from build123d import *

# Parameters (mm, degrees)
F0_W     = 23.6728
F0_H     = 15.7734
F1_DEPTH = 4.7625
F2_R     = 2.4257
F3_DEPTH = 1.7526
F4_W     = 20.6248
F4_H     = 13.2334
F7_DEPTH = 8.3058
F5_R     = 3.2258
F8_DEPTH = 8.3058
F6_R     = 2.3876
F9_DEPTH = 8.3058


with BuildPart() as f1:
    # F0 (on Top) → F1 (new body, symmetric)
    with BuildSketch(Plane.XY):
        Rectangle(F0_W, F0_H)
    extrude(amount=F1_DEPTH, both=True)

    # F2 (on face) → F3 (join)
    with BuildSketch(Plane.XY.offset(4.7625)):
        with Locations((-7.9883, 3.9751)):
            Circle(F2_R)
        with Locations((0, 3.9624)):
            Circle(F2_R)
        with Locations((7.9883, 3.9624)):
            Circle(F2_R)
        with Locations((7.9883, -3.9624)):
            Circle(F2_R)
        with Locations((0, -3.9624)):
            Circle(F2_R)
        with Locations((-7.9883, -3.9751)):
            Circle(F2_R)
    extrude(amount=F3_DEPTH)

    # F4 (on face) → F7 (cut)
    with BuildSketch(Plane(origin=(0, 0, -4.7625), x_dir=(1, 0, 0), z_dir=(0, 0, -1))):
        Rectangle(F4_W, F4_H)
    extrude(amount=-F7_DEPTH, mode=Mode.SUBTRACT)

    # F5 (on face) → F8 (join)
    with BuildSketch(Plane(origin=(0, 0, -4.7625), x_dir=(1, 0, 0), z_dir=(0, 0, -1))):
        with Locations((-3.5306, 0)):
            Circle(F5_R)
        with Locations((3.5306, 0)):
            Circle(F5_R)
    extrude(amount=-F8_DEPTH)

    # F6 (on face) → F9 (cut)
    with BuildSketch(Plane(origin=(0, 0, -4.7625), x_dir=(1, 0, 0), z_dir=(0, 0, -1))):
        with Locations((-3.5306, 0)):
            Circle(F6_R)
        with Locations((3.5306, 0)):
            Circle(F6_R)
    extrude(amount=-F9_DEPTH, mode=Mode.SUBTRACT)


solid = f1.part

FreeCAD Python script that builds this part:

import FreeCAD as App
import Part
import Sketcher
from FreeCAD import Vector
Q = App.Units.Quantity

doc = App.newDocument("Part")
params = doc.addObject("Spreadsheet::Sheet", "Params")
for row, (alias, value) in enumerate([
    ("sketch1_width", "0.932 in"),
    ("sketch1_height", "0.621 in"),
    ("pad1_length", "0.375 in"),
    ("sketch2_diameter", "0.191 in"),
    ("pad2_length", "0.069 in"),
    ("sketch3_width", "0.812 in"),
    ("sketch3_height", "0.521 in"),
    ("pocket1_length", "0.327 in"),
    ("sketch4_diameter", "0.254 in"),
    ("pad3_length", "0.327 in"),
    ("sketch5_diameter", "0.188 in"),
    ("pocket2_length", "0.327 in"),
], start=1):
    params.set(f"A{row}", alias)
    params.set(f"B{row}", "=" + value)
    params.setAlias(f"B{row}", alias)

body = doc.addObject("PartDesign::Body", "Body")

# Sketch on XY plane
sketch1 = body.newObject("Sketcher::SketchObject", "Sketch")
sketch1.AttachmentSupport = (doc.getObject("XY_Plane"), [""])
sketch1.MapMode = "FlatFace"
sketch1.addGeometry([
    Part.LineSegment(Vector(-12, 8, 0), Vector(-12, -8, 0)),
    Part.LineSegment(Vector(-12, -8, 0), Vector(12, -8, 0)),
    Part.LineSegment(Vector(12, -8, 0), Vector(12, 8, 0)),
    Part.LineSegment(Vector(12, 8, 0), Vector(-12, 8, 0)),
], False)
sketch1.addConstraint([
    Sketcher.Constraint("Coincident", 0, 2, 1, 1),
    Sketcher.Constraint("Coincident", 1, 2, 2, 1),
    Sketcher.Constraint("Coincident", 2, 2, 3, 1),
    Sketcher.Constraint("Coincident", 3, 2, 0, 1),
    Sketcher.Constraint("Vertical", 0),
    Sketcher.Constraint("Horizontal", 1),
    Sketcher.Constraint("Vertical", 2),
    Sketcher.Constraint("Horizontal", 3),
    Sketcher.Constraint("Symmetric", 0, 2, 2, 2, -1, 1),
    Sketcher.Constraint("DistanceX", 1, 1, 1, 2, Q("0.932 in")),
    Sketcher.Constraint("DistanceY", 0, 2, 0, 1, Q("0.621 in")),
])
sketch1.setExpression("Constraints[9]", "Params.sketch1_width")
sketch1.setExpression("Constraints[10]", "Params.sketch1_height")
pad1 = body.newObject("PartDesign::Pad", "Pad")
pad1.Profile = sketch1
pad1.setExpression("Length", "Params.pad1_length")
pad1.Midplane = True

# Sketch on XY plane
sketch2 = body.newObject("Sketcher::SketchObject", "Sketch001")
sketch2.AttachmentSupport = (doc.getObject("XY_Plane"), [""])
sketch2.MapMode = "FlatFace"
sketch2.AttachmentOffset = App.Placement(Vector(0, 0, 0.1875 * 25.4), App.Rotation())
sketch2.addGeometry([
    Part.Circle(Vector(-8, 4, 0), Vector(0, 0, 1), 2.4),  # 0
    Part.Circle(Vector(0, 4, 0), Vector(0, 0, 1), 2.4),  # 1
    Part.Circle(Vector(8, 4, 0), Vector(0, 0, 1), 2.4),  # 2
    Part.Circle(Vector(8, -4, 0), Vector(0, 0, 1), 2.4),  # 3
    Part.Circle(Vector(0, -4, 0), Vector(0, 0, 1), 2.4),  # 4
    Part.Circle(Vector(-8, -4, 0), Vector(0, 0, 1), 2.4),  # 5
], False)
sketch2.addConstraint([
    Sketcher.Constraint("Equal", 0, 1),
    Sketcher.Constraint("Equal", 1, 2),
    Sketcher.Constraint("Equal", 2, 3),
    Sketcher.Constraint("Equal", 3, 4),
    Sketcher.Constraint("Equal", 4, 5),
    Sketcher.Constraint("Symmetric", 1, 3, 4, 3, -1, 1),
    Sketcher.Constraint("Symmetric", 2, 3, 3, 3, -1),
    Sketcher.Constraint("Symmetric", 0, 3, 5, 3, -1),
    Sketcher.Constraint("PointOnObject", 1, 3, -2),
    Sketcher.Constraint("Horizontal", 1, 3, 2, 3),
    Sketcher.Constraint("Diameter", 0, Q("0.191 in")),
    Sketcher.Constraint("DistanceY", -1, 1, 1, 3, Q("0.156 in")),
    Sketcher.Constraint("DistanceX", 0, 3, 2, 3, Q("0.629 in")),
    Sketcher.Constraint("DistanceY", 3, 3, 0, 3, Q("0.3125 in")),
    Sketcher.Constraint("DistanceX", 0, 3, -1, 1, Q("0.3145 in")),
])
sketch2.setExpression("Constraints[10]", "Params.sketch2_diameter")
pad2 = body.newObject("PartDesign::Pad", "Pad001")
pad2.Profile = sketch2
pad2.setExpression("Length", "Params.pad2_length")

# Sketch on XY plane
sketch3 = body.newObject("Sketcher::SketchObject", "Sketch002")
sketch3.AttachmentSupport = (doc.getObject("XY_Plane"), [""])
sketch3.MapMode = "FlatFace"
sketch3.AttachmentOffset = App.Placement(Vector(0, 0, -0.1875 * 25.4), App.Rotation())
sketch3.addGeometry([
    Part.LineSegment(Vector(-10, -7, 0), Vector(-10, 7, 0)),
    Part.LineSegment(Vector(-10, 7, 0), Vector(10, 7, 0)),
    Part.LineSegment(Vector(10, 7, 0), Vector(10, -7, 0)),
    Part.LineSegment(Vector(10, -7, 0), Vector(-10, -7, 0)),
], False)
sketch3.addConstraint([
    Sketcher.Constraint("Coincident", 0, 2, 1, 1),
    Sketcher.Constraint("Coincident", 1, 2, 2, 1),
    Sketcher.Constraint("Coincident", 2, 2, 3, 1),
    Sketcher.Constraint("Coincident", 3, 2, 0, 1),
    Sketcher.Constraint("Vertical", 0),
    Sketcher.Constraint("Horizontal", 1),
    Sketcher.Constraint("Vertical", 2),
    Sketcher.Constraint("Horizontal", 3),
    Sketcher.Constraint("Symmetric", 0, 2, 2, 2, -1, 1),
    Sketcher.Constraint("DistanceX", 1, 1, 1, 2, Q("0.812 in")),
    Sketcher.Constraint("DistanceY", 0, 1, 0, 2, Q("0.521 in")),
])
sketch3.setExpression("Constraints[9]", "Params.sketch3_width")
sketch3.setExpression("Constraints[10]", "Params.sketch3_height")
pocket1 = body.newObject("PartDesign::Pocket", "Pocket")
pocket1.Profile = sketch3
pocket1.setExpression("Length", "Params.pocket1_length")
pocket1.Reversed = True

# Sketch on XY plane
sketch4 = body.newObject("Sketcher::SketchObject", "Sketch003")
sketch4.AttachmentSupport = (doc.getObject("XY_Plane"), [""])
sketch4.MapMode = "FlatFace"
sketch4.AttachmentOffset = App.Placement(Vector(0, 0, -0.1875 * 25.4), App.Rotation())
sketch4.addGeometry([
    Part.Circle(Vector(-3.5, 0, 0), Vector(0, 0, 1), 3.2),
    Part.Circle(Vector(3.5, 0, 0), Vector(0, 0, 1), 3.2),
], False)
sketch4.addConstraint([
    Sketcher.Constraint("Equal", 0, 1),
    Sketcher.Constraint("Symmetric", 0, 3, 1, 3, -1, 1),
    Sketcher.Constraint("PointOnObject", 0, 3, -1),
    Sketcher.Constraint("Diameter", 0, Q("0.254 in")),
    Sketcher.Constraint("DistanceX", 0, 3, -1, 1, Q("0.139 in")),
])
sketch4.setExpression("Constraints[3]", "Params.sketch4_diameter")
pad3 = body.newObject("PartDesign::Pad", "Pad002")
pad3.Profile = sketch4
pad3.setExpression("Length", "Params.pad3_length")

# Sketch on XY plane
sketch5 = body.newObject("Sketcher::SketchObject", "Sketch004")
sketch5.AttachmentSupport = (doc.getObject("XY_Plane"), [""])
sketch5.MapMode = "FlatFace"
sketch5.AttachmentOffset = App.Placement(Vector(0, 0, -0.1875 * 25.4), App.Rotation())
sketch5.addGeometry([
    Part.Circle(Vector(-3.5, 0, 0), Vector(0, 0, 1), 2.4),
    Part.Circle(Vector(3.5, 0, 0), Vector(0, 0, 1), 2.4),
], False)
sketch5.addConstraint([
    Sketcher.Constraint("Equal", 0, 1),
    Sketcher.Constraint("Symmetric", 0, 3, 1, 3, -1, 1),
    Sketcher.Constraint("PointOnObject", 0, 3, -1),
    Sketcher.Constraint("Diameter", 0, Q("0.188 in")),
    Sketcher.Constraint("DistanceX", 0, 3, -1, 1, Q("0.139 in")),
])
sketch5.setExpression("Constraints[3]", "Params.sketch5_diameter")
pocket2 = body.newObject("PartDesign::Pocket", "Pocket001")
pocket2.Profile = sketch5
pocket2.setExpression("Length", "Params.pocket2_length")
pocket2.Reversed = True

doc.recompute()
